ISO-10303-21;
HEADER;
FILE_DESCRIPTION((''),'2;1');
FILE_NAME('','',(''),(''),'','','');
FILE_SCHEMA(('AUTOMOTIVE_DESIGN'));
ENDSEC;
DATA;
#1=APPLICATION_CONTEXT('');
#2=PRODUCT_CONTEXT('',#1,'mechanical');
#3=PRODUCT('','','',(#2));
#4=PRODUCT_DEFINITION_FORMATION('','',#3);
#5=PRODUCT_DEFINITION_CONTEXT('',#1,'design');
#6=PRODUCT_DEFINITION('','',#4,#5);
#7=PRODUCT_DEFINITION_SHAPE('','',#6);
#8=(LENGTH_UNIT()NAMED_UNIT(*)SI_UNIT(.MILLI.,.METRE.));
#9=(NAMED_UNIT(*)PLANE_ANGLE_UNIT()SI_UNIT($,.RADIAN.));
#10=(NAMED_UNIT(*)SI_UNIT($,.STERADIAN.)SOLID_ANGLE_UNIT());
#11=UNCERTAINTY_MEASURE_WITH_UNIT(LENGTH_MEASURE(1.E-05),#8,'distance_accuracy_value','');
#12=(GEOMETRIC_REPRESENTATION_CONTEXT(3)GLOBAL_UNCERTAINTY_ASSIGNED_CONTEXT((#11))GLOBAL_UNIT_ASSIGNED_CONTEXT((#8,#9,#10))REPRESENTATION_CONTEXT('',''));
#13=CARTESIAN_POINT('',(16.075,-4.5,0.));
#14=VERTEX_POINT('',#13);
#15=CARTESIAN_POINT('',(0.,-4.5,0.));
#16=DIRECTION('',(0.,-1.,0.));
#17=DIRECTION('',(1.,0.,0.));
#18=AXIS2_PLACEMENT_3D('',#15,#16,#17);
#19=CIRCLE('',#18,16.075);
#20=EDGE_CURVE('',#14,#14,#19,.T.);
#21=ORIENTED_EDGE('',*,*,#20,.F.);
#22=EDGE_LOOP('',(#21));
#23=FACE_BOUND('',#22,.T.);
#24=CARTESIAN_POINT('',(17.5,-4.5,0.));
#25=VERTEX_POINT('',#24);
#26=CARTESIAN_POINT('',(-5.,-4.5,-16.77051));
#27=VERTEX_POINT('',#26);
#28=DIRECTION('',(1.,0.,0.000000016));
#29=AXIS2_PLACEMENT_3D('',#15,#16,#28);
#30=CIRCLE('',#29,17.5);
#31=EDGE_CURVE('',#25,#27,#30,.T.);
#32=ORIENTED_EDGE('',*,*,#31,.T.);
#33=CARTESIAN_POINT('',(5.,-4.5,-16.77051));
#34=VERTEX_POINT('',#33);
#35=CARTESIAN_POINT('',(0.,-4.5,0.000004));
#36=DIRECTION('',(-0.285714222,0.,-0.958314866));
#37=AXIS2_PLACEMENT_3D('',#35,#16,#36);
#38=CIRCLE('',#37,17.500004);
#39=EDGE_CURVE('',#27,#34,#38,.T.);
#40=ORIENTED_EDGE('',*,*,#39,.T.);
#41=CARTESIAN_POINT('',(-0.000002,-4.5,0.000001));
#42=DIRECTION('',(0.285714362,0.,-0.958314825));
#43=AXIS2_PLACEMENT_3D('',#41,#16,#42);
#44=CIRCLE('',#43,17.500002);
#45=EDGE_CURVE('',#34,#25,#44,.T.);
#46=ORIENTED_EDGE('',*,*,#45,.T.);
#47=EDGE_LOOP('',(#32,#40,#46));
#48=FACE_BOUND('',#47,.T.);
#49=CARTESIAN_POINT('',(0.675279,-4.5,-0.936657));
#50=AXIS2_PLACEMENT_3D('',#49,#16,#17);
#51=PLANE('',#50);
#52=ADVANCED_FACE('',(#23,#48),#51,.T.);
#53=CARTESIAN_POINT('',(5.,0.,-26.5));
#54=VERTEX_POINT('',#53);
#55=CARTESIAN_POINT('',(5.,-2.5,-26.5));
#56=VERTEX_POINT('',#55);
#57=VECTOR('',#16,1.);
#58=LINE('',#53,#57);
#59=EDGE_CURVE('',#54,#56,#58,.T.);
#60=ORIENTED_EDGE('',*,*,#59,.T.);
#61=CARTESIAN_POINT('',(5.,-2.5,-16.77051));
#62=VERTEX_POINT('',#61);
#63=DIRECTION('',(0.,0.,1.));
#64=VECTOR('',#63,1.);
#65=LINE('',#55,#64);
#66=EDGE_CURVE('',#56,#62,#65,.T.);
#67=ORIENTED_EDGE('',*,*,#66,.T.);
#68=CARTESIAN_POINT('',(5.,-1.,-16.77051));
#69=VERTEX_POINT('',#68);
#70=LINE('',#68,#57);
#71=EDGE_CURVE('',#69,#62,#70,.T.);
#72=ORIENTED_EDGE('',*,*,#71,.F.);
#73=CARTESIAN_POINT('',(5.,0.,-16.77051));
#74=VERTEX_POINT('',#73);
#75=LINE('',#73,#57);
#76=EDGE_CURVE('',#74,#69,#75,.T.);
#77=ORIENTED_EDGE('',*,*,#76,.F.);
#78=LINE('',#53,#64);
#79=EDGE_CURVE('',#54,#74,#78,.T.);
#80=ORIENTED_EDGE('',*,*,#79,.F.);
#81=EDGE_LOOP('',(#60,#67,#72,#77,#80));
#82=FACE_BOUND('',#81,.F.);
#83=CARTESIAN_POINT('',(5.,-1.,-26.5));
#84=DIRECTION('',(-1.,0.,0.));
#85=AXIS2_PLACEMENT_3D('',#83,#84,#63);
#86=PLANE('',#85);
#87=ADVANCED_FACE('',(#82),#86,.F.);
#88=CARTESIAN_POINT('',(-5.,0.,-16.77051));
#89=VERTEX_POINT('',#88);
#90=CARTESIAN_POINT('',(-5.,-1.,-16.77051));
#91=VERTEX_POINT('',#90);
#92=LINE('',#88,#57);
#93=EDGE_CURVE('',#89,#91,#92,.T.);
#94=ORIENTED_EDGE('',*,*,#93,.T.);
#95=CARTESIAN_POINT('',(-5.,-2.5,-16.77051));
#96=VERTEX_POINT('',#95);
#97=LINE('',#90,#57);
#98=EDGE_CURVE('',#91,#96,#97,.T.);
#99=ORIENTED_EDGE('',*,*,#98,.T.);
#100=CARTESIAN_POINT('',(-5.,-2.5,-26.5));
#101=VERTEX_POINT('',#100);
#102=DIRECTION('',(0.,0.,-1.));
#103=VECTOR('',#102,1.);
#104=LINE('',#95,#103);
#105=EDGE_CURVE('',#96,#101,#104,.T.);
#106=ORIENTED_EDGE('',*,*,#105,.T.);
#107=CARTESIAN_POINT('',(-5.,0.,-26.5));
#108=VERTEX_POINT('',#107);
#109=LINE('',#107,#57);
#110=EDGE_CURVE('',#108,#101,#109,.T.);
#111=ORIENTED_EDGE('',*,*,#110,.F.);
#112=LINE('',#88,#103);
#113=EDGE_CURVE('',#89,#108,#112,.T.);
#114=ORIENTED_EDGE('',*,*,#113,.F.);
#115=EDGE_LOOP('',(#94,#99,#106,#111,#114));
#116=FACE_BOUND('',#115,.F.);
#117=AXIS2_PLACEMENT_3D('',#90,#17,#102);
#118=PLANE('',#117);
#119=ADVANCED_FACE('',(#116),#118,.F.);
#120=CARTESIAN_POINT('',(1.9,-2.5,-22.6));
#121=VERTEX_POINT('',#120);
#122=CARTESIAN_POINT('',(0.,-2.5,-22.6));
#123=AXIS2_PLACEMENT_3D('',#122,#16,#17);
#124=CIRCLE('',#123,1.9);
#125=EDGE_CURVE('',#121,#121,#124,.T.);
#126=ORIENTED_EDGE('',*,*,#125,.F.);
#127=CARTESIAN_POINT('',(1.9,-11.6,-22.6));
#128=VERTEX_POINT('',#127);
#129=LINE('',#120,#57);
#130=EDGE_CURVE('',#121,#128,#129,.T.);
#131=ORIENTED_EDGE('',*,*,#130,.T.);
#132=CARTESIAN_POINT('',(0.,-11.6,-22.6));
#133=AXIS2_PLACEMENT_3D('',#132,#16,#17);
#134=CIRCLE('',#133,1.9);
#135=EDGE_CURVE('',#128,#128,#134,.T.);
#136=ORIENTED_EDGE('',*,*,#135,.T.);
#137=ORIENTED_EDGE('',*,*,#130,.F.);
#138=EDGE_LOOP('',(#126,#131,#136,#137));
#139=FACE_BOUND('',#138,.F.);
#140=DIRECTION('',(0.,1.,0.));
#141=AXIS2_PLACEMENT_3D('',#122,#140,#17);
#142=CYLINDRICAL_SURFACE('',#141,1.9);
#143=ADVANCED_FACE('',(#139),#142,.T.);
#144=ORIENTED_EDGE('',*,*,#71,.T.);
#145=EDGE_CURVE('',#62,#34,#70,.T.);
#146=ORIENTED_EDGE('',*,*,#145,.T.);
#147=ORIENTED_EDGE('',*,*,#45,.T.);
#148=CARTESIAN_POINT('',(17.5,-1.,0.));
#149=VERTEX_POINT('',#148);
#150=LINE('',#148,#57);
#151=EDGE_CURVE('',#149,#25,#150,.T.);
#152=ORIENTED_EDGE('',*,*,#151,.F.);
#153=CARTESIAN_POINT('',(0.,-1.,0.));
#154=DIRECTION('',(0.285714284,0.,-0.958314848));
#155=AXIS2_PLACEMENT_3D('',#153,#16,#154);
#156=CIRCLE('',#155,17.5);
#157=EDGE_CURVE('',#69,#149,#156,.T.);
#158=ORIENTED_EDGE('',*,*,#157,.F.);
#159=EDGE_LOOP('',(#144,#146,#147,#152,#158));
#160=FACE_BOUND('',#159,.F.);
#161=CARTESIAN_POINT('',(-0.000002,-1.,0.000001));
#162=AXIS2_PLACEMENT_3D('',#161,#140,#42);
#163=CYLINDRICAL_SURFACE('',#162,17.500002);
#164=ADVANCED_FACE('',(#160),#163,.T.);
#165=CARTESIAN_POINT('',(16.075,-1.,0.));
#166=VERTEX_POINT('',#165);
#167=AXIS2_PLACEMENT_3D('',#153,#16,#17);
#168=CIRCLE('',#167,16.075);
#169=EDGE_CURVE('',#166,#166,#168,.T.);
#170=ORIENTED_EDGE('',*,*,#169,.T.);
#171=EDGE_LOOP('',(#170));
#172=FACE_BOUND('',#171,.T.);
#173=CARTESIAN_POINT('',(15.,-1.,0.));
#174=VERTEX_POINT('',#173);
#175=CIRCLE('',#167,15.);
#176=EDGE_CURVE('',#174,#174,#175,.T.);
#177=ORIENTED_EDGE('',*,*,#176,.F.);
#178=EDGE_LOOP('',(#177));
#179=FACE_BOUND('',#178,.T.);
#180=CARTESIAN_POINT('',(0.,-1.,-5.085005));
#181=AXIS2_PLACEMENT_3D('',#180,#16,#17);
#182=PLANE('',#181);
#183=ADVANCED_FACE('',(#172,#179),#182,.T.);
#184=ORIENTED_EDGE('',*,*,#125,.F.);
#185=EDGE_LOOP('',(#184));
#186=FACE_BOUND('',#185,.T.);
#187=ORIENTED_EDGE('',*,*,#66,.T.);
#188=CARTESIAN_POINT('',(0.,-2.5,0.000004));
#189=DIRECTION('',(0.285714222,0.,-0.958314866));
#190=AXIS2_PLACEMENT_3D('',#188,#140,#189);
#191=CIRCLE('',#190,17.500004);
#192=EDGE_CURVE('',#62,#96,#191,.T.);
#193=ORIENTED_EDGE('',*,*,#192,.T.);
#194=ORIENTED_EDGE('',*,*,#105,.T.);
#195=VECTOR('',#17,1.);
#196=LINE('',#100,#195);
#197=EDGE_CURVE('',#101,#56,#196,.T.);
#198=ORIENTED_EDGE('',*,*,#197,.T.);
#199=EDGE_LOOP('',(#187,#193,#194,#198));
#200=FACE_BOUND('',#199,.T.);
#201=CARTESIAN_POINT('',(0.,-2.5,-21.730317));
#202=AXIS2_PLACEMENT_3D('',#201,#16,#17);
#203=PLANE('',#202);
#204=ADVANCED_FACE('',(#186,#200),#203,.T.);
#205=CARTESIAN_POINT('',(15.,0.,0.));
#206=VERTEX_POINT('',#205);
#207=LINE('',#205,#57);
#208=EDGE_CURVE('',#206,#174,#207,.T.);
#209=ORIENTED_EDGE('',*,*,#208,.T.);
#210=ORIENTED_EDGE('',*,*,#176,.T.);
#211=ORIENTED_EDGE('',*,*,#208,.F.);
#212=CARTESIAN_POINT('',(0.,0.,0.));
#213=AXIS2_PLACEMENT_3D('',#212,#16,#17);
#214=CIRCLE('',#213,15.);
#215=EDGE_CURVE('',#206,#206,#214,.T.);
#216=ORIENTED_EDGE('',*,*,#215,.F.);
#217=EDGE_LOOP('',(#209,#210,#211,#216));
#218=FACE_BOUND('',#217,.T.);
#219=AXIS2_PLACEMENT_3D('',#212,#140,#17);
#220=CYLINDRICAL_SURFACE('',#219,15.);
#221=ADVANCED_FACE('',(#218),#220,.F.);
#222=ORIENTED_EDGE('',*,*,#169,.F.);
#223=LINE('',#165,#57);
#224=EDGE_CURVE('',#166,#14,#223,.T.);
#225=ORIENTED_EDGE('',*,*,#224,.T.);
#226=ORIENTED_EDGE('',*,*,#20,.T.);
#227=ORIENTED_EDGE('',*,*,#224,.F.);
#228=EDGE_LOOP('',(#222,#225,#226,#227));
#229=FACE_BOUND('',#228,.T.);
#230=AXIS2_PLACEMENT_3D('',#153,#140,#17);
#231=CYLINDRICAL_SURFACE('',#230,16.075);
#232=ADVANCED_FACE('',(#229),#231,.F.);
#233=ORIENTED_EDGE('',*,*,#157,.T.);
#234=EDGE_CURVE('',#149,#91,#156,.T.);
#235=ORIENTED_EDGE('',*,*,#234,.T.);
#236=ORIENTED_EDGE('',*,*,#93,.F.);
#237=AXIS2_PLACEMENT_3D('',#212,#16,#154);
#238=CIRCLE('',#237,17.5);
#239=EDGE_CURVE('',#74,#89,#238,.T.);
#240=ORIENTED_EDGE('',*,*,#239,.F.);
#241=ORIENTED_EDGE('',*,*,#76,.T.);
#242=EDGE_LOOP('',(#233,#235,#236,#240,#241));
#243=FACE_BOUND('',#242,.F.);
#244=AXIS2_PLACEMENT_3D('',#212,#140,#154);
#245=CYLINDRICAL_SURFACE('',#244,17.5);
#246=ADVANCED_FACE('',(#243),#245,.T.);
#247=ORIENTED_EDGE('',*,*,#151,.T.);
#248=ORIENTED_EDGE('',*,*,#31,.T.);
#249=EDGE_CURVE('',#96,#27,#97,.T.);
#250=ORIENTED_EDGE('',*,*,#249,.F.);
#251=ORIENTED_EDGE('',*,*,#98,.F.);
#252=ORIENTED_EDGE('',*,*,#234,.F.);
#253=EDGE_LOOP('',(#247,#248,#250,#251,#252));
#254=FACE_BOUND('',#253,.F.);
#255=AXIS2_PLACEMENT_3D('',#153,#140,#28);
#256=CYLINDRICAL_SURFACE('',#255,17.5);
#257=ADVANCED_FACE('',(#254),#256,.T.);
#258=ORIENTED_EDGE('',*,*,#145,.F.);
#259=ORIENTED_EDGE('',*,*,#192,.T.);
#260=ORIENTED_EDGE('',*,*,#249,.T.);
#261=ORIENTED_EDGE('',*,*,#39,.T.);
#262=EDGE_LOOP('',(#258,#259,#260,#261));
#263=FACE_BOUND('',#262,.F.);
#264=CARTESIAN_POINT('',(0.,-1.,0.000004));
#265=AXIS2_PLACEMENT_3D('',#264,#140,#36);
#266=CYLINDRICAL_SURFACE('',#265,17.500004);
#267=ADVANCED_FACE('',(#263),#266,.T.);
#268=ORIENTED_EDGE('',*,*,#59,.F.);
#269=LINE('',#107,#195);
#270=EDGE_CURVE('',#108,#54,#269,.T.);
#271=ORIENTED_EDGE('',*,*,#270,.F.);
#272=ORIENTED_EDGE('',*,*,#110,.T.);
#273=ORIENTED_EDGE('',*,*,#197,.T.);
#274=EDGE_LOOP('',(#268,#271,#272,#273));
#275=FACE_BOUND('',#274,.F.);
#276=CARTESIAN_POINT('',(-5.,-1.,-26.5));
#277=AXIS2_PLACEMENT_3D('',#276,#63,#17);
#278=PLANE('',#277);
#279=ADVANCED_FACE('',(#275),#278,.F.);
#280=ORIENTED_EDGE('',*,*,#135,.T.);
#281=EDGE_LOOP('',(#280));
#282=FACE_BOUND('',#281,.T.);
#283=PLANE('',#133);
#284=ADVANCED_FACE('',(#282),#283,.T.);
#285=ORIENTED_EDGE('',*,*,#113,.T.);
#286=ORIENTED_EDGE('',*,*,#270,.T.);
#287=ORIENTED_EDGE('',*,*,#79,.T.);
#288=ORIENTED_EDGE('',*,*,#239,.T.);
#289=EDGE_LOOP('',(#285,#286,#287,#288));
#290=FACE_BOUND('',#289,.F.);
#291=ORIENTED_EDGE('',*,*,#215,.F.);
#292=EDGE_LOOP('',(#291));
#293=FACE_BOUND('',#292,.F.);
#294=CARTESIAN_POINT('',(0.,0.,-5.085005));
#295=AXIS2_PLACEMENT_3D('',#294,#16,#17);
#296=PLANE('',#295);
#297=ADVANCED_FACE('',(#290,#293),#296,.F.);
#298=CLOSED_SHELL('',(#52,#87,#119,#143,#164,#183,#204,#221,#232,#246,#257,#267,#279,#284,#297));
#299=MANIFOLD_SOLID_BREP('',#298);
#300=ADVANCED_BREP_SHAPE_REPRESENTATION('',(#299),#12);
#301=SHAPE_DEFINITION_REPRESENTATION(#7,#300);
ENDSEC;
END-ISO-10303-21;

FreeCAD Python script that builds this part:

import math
import FreeCAD as App
import Part
import Sketcher
from FreeCAD import Vector

doc = App.newDocument("Part")
body = doc.addObject("PartDesign::Body", "Body")

# Sketch on XZ plane
sketch1 = body.newObject("Sketcher::SketchObject", "Sketch")
sketch1.AttachmentSupport = (doc.getObject("XZ_Plane"), [""])
sketch1.MapMode = "FlatFace"
sketch1.addGeometry([
    Part.LineSegment(Vector(5, -26, 0), Vector(5, -17, 0)),  # 0
    Part.ArcOfCircle(Part.Circle(Vector(0, 0, 0), Vector(0, 0, 1), 18), math.radians(-73), math.radians(253)),  # 1
    Part.LineSegment(Vector(-5, -17, 0), Vector(-5, -26, 0)),  # 2
    Part.LineSegment(Vector(-5, -26, 0), Vector(5, -26, 0)),  # 3
    Part.Circle(Vector(0, 0, 0), Vector(0, 0, 1), 15),  # 4
], False)
sketch1.addConstraint([
    Sketcher.Constraint("Coincident", 0, 2, 1, 1),
    Sketcher.Constraint("Coincident", 1, 2, 2, 1),
    Sketcher.Constraint("Coincident", 2, 2, 3, 1),
    Sketcher.Constraint("Coincident", 3, 2, 0, 1),
    Sketcher.Constraint("Vertical", 0),
    Sketcher.Constraint("Vertical", 2),
    Sketcher.Constraint("Horizontal", 3),
    Sketcher.Constraint("Coincident", 1, 3, -1, 1),
    Sketcher.Constraint("Coincident", 4, 3, -1, 1),
    Sketcher.Constraint("Horizontal", 0, 2, 1, 2),
    Sketcher.Constraint("Diameter", 4, 30.0),
    Sketcher.Constraint("Radius", 1, 17.5),
    Sketcher.Constraint("DistanceX", 3, 1, 3, 2, 10.0),
    Sketcher.Constraint("DistanceY", 2, 2, -1, 1, 26.5),
])
pad1 = body.newObject("PartDesign::Pad", "Pad")
pad1.Profile = sketch1
pad1.Length = 1

# Sketch on XZ plane
sketch2 = body.newObject("Sketcher::SketchObject", "Sketch001")
sketch2.AttachmentSupport = (doc.getObject("XZ_Plane"), [""])
sketch2.MapMode = "FlatFace"
sketch2.AttachmentOffset = App.Placement(Vector(0, 0, 1), App.Rotation())
sketch2.addGeometry([
    Part.ArcOfCircle(Part.Circle(Vector(0, 0, 0), Vector(0, 0, 1), 18), math.radians(-73), math.radians(0)),
    Part.ArcOfCircle(Part.Circle(Vector(0, 0, 0), Vector(0, 0, 1), 17), math.radians(0), math.radians(253)),
    Part.ArcOfCircle(Part.Circle(Vector(0, 0, 0), Vector(0, 0, 1), 18), math.radians(-107), math.radians(-73)),
    Part.Circle(Vector(0, 0, 0), Vector(0, 0, 1), 16),
], False)
sketch2.addConstraint([
    Sketcher.Constraint("Tangent", 0, 2, 1, 1),
    Sketcher.Constraint("Tangent", 1, 2, 2, 1),
    Sketcher.Constraint("Tangent", 2, 2, 0, 1),
    Sketcher.Constraint("Coincident", 0, 3, -1, 1),
    Sketcher.Constraint("Coincident", 3, 3, -1, 1),
    Sketcher.Constraint("PointOnObject", 0, 2, -1),
    Sketcher.Constraint("Horizontal", 1, 2, 2, 2),
    Sketcher.Constraint("Radius", 0, 17.500002),
    Sketcher.Constraint("Diameter", 3, 32.15),
    Sketcher.Constraint("DistanceX", 1, 2, -1, 1, 5.0),
])
pad2 = body.newObject("PartDesign::Pad", "Pad001")
pad2.Profile = sketch2
pad2.Length = 3.5

# Sketch on XZ plane
sketch3 = body.newObject("Sketcher::SketchObject", "Sketch002")
sketch3.AttachmentSupport = (doc.getObject("XZ_Plane"), [""])
sketch3.MapMode = "FlatFace"
sketch3.AttachmentOffset = App.Placement(Vector(0, 0, 1), App.Rotation())
sketch3.addGeometry([
    Part.ArcOfCircle(Part.Circle(Vector(0, 0, 0), Vector(0, 0, 1), 18), math.radians(-107), math.radians(-73)),
    Part.LineSegment(Vector(-5, -17, 0), Vector(-5, -26, 0)),
    Part.LineSegment(Vector(-5, -26, 0), Vector(5, -26, 0)),
    Part.LineSegment(Vector(5, -26, 0), Vector(5, -17, 0)),
], False)
sketch3.addConstraint([
    Sketcher.Constraint("Coincident", 0, 1, 1, 1),
    Sketcher.Constraint("Coincident", 1, 2, 2, 1),
    Sketcher.Constraint("Coincident", 2, 2, 3, 1),
    Sketcher.Constraint("Coincident", 3, 2, 0, 2),
    Sketcher.Constraint("Vertical", 1),
    Sketcher.Constraint("Horizontal", 2),
    Sketcher.Constraint("Vertical", 3),
    Sketcher.Constraint("Coincident", 0, 3, -1, 1),
    Sketcher.Constraint("Horizontal", 0, 1, 3, 2),
    Sketcher.Constraint("DistanceX", 2, 1, 2, 2, 10.0),
    Sketcher.Constraint("DistanceY", 1, 2, -1, 1, 26.5),
    Sketcher.Constraint("Radius", 0, 17.500004),
])
pad3 = body.newObject("PartDesign::Pad", "Pad002")
pad3.Profile = sketch3
pad3.Length = 1.5

# Sketch on XZ plane
sketch4 = body.newObject("Sketcher::SketchObject", "Sketch003")
sketch4.AttachmentSupport = (doc.getObject("XZ_Plane"), [""])
sketch4.MapMode = "FlatFace"
sketch4.AttachmentOffset = App.Placement(Vector(0, 0, 2.5), App.Rotation())
sketch4.addGeometry(Part.Circle(Vector(0, -22.6, 0), Vector(0, 0, 1), 1.9), False)
sketch4.addConstraint([
    Sketcher.Constraint("PointOnObject", 0, 3, -2),
    Sketcher.Constraint("Diameter", 0, 3.8),
    Sketcher.Constraint("DistanceY", 0, 3, -1, 1, 22.6),
])
pad4 = body.newObject("PartDesign::Pad", "Pad003")
pad4.Profile = sketch4
pad4.Length = 9.1

doc.recompute()
